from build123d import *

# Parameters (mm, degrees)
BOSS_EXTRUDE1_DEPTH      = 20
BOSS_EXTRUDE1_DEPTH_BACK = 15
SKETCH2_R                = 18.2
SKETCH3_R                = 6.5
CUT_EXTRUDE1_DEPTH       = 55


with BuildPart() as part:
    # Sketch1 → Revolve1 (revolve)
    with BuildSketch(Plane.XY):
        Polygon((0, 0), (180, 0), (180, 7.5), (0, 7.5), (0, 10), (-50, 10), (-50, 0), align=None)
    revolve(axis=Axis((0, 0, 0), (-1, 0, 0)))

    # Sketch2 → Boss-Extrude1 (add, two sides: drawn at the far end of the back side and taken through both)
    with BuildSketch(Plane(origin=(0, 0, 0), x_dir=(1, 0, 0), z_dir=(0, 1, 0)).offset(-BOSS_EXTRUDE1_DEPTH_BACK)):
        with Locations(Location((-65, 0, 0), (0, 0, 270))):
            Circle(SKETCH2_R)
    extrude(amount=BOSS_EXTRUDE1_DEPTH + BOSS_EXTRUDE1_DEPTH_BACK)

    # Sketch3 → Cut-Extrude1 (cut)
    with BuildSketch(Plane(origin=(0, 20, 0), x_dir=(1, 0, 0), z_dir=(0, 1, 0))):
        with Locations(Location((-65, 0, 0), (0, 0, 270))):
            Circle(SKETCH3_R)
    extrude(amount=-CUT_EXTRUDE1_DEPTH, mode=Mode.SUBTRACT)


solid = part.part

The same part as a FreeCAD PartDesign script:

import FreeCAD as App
import Part
import Sketcher
from FreeCAD import Vector


def add_polygon(sketch, points):
    """Adds a closed chain of lines whose ends are joined by coincident constraints."""
    first, n = sketch.GeometryCount, len(points)
    for a, b in zip(points, points[1:] + points[:1]):
        sketch.addGeometry(Part.LineSegment(App.Vector(*a, 0), App.Vector(*b, 0)), False)
    for i in range(n):
        sketch.addConstraint(Sketcher.Constraint("Coincident", first + i, 2, first + (i + 1) % n, 1))

doc = App.newDocument("Part")
params = doc.addObject("Spreadsheet::Sheet", "Params")
for row, (alias, value) in enumerate([
    ("sketch1_width", "180 mm"),
    ("sketch1_width2", "50 mm"),
    ("sketch1_height", "10 mm"),
    ("sketch1_height2", "7.5 mm"),
    ("revolution_angle", "360 deg"),
    ("sketch2_diameter", "36.4 mm"),
    ("pad1_length", "20 mm"),
    ("pad1_length2", "15 mm"),
    ("sketch3_diameter", "13 mm"),
    ("pocket1_length", "55 mm"),
], start=1):
    params.set(f"A{row}", alias)
    params.set(f"B{row}", "=" + value)
    params.setAlias(f"B{row}", alias)

body = doc.addObject("PartDesign::Body", "Body")

sketch1 = body.newObject("Sketcher::SketchObject", "Sketch")
sketch1.AttachmentSupport = (doc.getObject("XY_Plane"), [""])
sketch1.MapMode = "FlatFace"
add_polygon(sketch1, [(180, 0), (180, 7.5), (0, 7.5), (0, 10), (-50, 10), (-50, 0)])
sketch1.addConstraint(Sketcher.Constraint("Vertical", 0))
sketch1.addConstraint(Sketcher.Constraint("Horizontal", 1))
sketch1.addConstraint(Sketcher.Constraint("Vertical", 2))
sketch1.addConstraint(Sketcher.Constraint("Horizontal", 3))
sketch1.addConstraint(Sketcher.Constraint("Vertical", 4))
sketch1.addConstraint(Sketcher.Constraint("Horizontal", 5))
sketch1.addConstraint(Sketcher.Constraint("PointOnObject", 1, 2, -2))
sketch1.addConstraint(Sketcher.Constraint("PointOnObject", 4, 2, -1))
sketch1.addConstraint(Sketcher.Constraint("DistanceX", 1, 2, 1, 1, 180.0))
sketch1.addConstraint(Sketcher.Constraint("DistanceX", 3, 2, 3, 1, 50.0))
sketch1.addConstraint(Sketcher.Constraint("DistanceY", 4, 2, 4, 1, 10.0))
sketch1.addConstraint(Sketcher.Constraint("DistanceY", 0, 1, 0, 2, 7.5))
sketch1.setExpression("Constraints[14]", "Params.sketch1_width")
sketch1.setExpression("Constraints[15]", "Params.sketch1_width2")
sketch1.setExpression("Constraints[16]", "Params.sketch1_height")
sketch1.setExpression("Constraints[17]", "Params.sketch1_height2")
revolution = body.newObject("PartDesign::Revolution", "Revolution")
revolution.Profile = sketch1
revolution.ReferenceAxis = (sketch1, ["H_Axis"])
revolution.setExpression("Angle", "Params.revolution_angle")

sketch2 = body.newObject("Sketcher::SketchObject", "Sketch001")
sketch2.AttachmentSupport = (doc.getObject("XZ_Plane"), [""])
sketch2.MapMode = "FlatFace"
sketch2.addGeometry(Part.Circle(Vector(-65, 0, 0), Vector(0, 0, 1), 18), False)
sketch2.addConstraint(Sketcher.Constraint("PointOnObject", 0, 3, -1))
sketch2.addConstraint(Sketcher.Constraint("Diameter", 0, 36.4))
sketch2.addConstraint(Sketcher.Constraint("DistanceX", 0, 3, -1, 1, 65.0))
sketch2.setExpression("Constraints[1]", "Params.sketch2_diameter")
pad1 = body.newObject("PartDesign::Pad", "Pad")
pad1.Profile = sketch2
pad1.Type = "TwoLengths"
pad1.setExpression("Length", "Params.pad1_length")
pad1.setExpression("Length2", "Params.pad1_length2")
pad1.Reversed = True

sketch3 = body.newObject("Sketcher::SketchObject", "Sketch002")
sketch3.AttachmentSupport = (doc.getObject("XZ_Plane"), [""])
sketch3.MapMode = "FlatFace"
sketch3.AttachmentOffset = App.Placement(Vector(0, 0, -20), App.Rotation())
sketch3.addGeometry(Part.Circle(Vector(-65, 0, 0), Vector(0, 0, 1), 6), False)
sketch3.addConstraint(Sketcher.Constraint("PointOnObject", 0, 3, -1))
sketch3.addConstraint(Sketcher.Constraint("Diameter", 0, 13.0))
sketch3.addConstraint(Sketcher.Constraint("DistanceX", 0, 3, -1, 1, 65.0))
sketch3.setExpression("Constraints[1]", "Params.sketch3_diameter")
pocket1 = body.newObject("PartDesign::Pocket", "Pocket")
pocket1.Profile = sketch3
pocket1.setExpression("Length", "Params.pocket1_length")
pocket1.Reversed = True

doc.recompute()
